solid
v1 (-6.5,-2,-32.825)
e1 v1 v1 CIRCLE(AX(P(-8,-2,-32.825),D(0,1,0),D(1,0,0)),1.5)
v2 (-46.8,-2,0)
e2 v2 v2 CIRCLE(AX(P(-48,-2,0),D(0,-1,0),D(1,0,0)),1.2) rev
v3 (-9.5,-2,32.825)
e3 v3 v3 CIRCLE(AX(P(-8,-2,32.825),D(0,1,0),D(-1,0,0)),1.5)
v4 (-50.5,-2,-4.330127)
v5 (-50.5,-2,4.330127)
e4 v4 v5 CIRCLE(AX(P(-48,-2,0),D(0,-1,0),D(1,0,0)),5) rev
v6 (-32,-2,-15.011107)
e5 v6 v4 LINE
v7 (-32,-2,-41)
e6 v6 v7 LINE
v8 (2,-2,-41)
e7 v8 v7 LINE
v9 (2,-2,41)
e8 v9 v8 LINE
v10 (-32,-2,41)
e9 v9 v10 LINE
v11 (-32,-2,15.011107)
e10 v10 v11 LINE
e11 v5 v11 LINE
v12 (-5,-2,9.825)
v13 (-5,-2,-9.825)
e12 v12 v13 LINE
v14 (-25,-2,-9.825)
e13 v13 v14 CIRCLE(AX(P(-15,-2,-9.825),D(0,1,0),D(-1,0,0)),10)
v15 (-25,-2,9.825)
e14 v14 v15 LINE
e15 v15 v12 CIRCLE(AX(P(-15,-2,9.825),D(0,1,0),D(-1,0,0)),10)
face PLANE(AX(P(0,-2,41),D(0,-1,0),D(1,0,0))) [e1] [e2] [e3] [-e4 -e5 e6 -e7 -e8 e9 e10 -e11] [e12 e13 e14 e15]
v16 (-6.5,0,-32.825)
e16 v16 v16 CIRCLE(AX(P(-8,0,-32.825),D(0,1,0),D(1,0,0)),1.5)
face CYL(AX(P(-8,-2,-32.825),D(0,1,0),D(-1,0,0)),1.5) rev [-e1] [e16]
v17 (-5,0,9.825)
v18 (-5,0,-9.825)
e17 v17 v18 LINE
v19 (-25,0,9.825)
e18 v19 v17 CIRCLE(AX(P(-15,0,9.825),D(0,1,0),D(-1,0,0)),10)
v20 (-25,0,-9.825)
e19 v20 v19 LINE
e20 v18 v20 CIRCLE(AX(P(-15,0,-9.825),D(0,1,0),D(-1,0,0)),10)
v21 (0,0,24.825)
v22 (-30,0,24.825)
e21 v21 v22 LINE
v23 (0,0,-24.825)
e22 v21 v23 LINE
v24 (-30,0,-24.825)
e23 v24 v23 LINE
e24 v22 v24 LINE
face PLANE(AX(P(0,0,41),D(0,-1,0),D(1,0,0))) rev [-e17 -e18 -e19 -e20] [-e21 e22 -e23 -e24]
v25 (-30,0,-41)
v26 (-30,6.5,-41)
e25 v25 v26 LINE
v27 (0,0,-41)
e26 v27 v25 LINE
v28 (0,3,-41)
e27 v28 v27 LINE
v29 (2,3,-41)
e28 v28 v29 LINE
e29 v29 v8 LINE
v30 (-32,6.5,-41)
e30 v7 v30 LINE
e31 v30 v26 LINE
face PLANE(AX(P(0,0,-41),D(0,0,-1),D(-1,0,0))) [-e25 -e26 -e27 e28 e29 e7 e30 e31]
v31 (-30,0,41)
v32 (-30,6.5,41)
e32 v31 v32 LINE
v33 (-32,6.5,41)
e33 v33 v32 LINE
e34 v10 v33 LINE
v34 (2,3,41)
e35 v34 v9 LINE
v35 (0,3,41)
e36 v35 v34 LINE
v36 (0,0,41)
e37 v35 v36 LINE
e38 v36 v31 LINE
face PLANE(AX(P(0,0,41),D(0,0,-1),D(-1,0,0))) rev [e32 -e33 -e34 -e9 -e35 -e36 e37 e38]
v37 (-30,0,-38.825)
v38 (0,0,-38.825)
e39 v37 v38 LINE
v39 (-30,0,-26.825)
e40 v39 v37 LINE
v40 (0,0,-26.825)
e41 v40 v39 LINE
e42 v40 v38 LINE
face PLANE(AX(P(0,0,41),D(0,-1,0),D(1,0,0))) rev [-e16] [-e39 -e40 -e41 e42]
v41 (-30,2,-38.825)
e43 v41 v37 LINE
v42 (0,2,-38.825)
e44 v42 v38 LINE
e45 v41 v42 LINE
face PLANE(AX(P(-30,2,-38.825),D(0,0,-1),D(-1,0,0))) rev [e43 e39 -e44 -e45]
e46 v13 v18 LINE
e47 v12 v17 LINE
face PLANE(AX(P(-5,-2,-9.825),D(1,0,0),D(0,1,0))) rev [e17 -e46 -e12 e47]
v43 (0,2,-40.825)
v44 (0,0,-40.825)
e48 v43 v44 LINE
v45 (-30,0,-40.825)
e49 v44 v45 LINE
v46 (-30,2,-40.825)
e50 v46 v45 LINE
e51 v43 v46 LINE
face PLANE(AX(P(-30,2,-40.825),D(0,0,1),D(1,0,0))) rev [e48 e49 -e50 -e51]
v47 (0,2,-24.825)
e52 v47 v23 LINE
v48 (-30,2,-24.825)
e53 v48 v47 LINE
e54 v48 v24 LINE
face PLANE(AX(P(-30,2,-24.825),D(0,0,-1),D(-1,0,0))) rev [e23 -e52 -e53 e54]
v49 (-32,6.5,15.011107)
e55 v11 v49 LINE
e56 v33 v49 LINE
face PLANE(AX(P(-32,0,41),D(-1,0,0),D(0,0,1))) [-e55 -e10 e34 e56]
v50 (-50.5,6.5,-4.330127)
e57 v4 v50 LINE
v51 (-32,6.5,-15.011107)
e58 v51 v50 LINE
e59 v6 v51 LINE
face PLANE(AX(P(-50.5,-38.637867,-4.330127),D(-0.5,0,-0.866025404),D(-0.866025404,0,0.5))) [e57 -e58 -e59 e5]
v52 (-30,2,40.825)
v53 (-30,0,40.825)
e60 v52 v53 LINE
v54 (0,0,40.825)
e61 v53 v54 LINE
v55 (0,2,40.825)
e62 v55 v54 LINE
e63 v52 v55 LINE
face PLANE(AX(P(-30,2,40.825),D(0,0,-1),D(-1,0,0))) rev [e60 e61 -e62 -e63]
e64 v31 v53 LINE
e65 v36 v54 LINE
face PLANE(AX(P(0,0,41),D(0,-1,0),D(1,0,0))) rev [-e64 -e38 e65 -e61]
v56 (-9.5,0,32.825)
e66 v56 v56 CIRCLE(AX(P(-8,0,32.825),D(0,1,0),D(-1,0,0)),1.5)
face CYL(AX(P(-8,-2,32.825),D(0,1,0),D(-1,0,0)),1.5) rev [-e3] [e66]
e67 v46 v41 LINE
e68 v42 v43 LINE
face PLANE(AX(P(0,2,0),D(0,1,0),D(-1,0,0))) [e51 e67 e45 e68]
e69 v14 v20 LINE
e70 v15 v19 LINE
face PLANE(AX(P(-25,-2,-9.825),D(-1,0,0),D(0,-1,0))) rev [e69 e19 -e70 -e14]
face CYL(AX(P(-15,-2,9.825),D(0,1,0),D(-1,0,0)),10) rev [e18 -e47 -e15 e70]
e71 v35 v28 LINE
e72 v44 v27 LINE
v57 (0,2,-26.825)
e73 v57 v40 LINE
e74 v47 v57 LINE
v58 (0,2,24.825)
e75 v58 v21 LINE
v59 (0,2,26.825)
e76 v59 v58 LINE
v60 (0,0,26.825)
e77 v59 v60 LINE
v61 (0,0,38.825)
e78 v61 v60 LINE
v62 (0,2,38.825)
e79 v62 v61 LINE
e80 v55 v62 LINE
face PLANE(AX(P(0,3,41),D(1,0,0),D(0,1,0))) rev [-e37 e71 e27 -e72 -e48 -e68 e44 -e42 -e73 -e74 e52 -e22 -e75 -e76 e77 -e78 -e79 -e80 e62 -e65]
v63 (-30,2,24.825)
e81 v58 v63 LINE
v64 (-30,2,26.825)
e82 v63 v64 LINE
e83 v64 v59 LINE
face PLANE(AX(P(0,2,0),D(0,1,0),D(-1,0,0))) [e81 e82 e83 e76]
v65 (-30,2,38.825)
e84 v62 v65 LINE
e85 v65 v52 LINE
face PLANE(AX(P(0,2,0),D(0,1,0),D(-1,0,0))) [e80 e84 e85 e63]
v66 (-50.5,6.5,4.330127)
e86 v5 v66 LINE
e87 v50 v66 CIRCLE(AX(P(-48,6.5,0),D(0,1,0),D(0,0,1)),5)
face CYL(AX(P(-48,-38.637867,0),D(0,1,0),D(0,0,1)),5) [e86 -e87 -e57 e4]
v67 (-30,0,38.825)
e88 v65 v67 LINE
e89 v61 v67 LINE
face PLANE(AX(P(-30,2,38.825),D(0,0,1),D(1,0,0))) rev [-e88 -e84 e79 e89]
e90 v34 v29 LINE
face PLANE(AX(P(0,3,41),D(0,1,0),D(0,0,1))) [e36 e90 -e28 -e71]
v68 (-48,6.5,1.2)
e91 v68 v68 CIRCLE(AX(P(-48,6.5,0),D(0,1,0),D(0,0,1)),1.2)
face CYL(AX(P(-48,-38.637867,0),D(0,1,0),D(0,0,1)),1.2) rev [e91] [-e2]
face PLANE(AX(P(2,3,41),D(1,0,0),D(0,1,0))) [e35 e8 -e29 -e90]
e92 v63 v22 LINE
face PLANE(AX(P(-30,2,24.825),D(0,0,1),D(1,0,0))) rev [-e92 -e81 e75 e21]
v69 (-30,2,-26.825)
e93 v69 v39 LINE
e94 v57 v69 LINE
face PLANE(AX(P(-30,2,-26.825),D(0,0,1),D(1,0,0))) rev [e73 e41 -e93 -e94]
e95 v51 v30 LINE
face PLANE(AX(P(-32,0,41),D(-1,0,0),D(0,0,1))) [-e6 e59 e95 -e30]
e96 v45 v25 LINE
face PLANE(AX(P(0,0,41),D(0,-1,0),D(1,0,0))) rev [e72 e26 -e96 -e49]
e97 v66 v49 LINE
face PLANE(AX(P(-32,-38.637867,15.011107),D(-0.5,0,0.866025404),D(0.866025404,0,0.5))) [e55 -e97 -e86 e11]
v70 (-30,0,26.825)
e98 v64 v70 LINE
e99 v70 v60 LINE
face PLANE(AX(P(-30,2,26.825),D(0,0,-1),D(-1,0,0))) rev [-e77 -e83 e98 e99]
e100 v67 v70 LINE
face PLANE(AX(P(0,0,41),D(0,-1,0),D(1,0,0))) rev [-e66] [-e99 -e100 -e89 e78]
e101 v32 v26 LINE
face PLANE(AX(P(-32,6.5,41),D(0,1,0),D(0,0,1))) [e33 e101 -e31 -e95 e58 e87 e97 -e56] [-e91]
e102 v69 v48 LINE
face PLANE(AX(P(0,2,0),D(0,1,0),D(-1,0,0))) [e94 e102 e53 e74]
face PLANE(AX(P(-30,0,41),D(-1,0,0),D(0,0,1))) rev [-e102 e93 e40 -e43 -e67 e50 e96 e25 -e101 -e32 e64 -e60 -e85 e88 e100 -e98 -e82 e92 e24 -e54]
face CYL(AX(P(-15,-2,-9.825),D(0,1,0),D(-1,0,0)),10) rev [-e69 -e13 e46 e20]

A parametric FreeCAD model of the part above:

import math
import FreeCAD as App
import Part
import Sketcher

V = App.Vector
Q = App.Units.Quantity

doc = App.newDocument("Part")
body = doc.addObject("PartDesign::Body", "Body")

# Sketch on XY plane
sketch1 = body.newObject("Sketcher::SketchObject", "Sketch")
sketch1.AttachmentSupport = (doc.getObject("XY_Plane"), [""])
sketch1.MapMode = "FlatFace"
sketch1.addGeometry(Part.LineSegment(V(0, 3, 0), V(0, 0, 0)), False)
sketch1.addGeometry(Part.LineSegment(V(0, 0, 0), V(-30, 0, 0)), False)
sketch1.addGeometry(Part.LineSegment(V(-30, 0, 0), V(-30, 6.5, 0)), False)
sketch1.addGeometry(Part.LineSegment(V(-30, 6.5, 0), V(-32, 6.5, 0)), False)
sketch1.addGeometry(Part.LineSegment(V(-32, 6.5, 0), V(-32, -2, 0)), False)
sketch1.addGeometry(Part.LineSegment(V(-32, -2, 0), V(2, -2, 0)), False)
sketch1.addGeometry(Part.LineSegment(V(2, -2, 0), V(2, 3, 0)), False)
sketch1.addGeometry(Part.LineSegment(V(2, 3, 0), V(0, 3, 0)), False)
sketch1.addConstraint(Sketcher.Constraint("Coincident", 0, 2, 1, 1))
sketch1.addConstraint(Sketcher.Constraint("Coincident", 1, 2, 2, 1))
sketch1.addConstraint(Sketcher.Constraint("Coincident", 2, 2, 3, 1))
sketch1.addConstraint(Sketcher.Constraint("Coincident", 3, 2, 4, 1))
sketch1.addConstraint(Sketcher.Constraint("Coincident", 4, 2, 5, 1))
sketch1.addConstraint(Sketcher.Constraint("Coincident", 5, 2, 6, 1))
sketch1.addConstraint(Sketcher.Constraint("Coincident", 6, 2, 7, 1))
sketch1.addConstraint(Sketcher.Constraint("Coincident", 7, 2, 0, 1))
sketch1.addConstraint(Sketcher.Constraint("Vertical", 0))
sketch1.addConstraint(Sketcher.Constraint("Horizontal", 1))
sketch1.addConstraint(Sketcher.Constraint("Vertical", 2))
sketch1.addConstraint(Sketcher.Constraint("Horizontal", 3))
sketch1.addConstraint(Sketcher.Constraint("Vertical", 4))
sketch1.addConstraint(Sketcher.Constraint("Horizontal", 5))
sketch1.addConstraint(Sketcher.Constraint("Vertical", 6))
sketch1.addConstraint(Sketcher.Constraint("Horizontal", 7))
sketch1.addConstraint(Sketcher.Constraint("Coincident", 0, 2, -1, 1))
sketch1.addConstraint(Sketcher.Constraint("Equal", 3, 7))
sketch1.addConstraint(Sketcher.Constraint("DistanceX", 1, 2, 1, 1, Q("30 mm")))
sketch1.addConstraint(Sketcher.Constraint("DistanceX", 3, 2, 3, 1, Q("2 mm")))
sketch1.addConstraint(Sketcher.Constraint("DistanceY", 0, 2, 0, 1, Q("3 mm")))
sketch1.addConstraint(Sketcher.Constraint("DistanceY", 6, 1, 6, 2, Q("5 mm")))
sketch1.addConstraint(Sketcher.Constraint("DistanceY", 2, 1, 2, 2, Q("6.5 mm")))
pad1 = body.newObject("PartDesign::Pad", "Pad")
pad1.Profile = sketch1
pad1.Length = 82
pad1.Midplane = True

# Sketch on XZ plane
sketch2 = body.newObject("Sketcher::SketchObject", "Sketch001")
sketch2.AttachmentSupport = (doc.getObject("XZ_Plane"), [""])
sketch2.MapMode = "FlatFace"
sketch2.addGeometry(Part.Circle(V(-8, 32.8, 0), V(0, 0, 1), 1.5), False)
sketch2.addGeometry(Part.Circle(V(-8, -32.8, 0), V(0, 0, 1), 1.5), False)
sketch2.addConstraint(Sketcher.Constraint("Equal", 0, 1))
sketch2.addConstraint(Sketcher.Constraint("Symmetric", 0, 3, 1, 3, -1))
sketch2.addConstraint(Sketcher.Constraint("Diameter", 0, Q("3 mm")))
sketch2.addConstraint(Sketcher.Constraint("DistanceX", 0, 3, -1, 1, Q("8 mm")))
sketch2.addConstraint(Sketcher.Constraint("DistanceY", 1, 3, 0, 3, Q("65.65 mm")))
pocket1 = body.newObject("PartDesign::Pocket", "Pocket")
pocket1.Profile = sketch2
pocket1.Type = "ThroughAll"
pocket1.Reversed = True

# Sketch on XZ plane
sketch3 = body.newObject("Sketcher::SketchObject", "Sketch002")
sketch3.AttachmentSupport = (doc.getObject("XZ_Plane"), [""])
sketch3.MapMode = "FlatFace"
sketch3.addGeometry(Part.LineSegment(V(-30, -26.8, 0), V(-30, -24.8, 0)), False)
sketch3.addGeometry(Part.LineSegment(V(-30, -24.8, 0), V(0, -24.8, 0)), False)
sketch3.addGeometry(Part.LineSegment(V(0, -24.8, 0), V(0, -26.8, 0)), False)
sketch3.addGeometry(Part.LineSegment(V(0, -26.8, 0), V(-30, -26.8, 0)), False)
sketch3.addGeometry(Part.LineSegment(V(-30, 24.8, 0), V(-30, 26.8, 0)), False)
sketch3.addGeometry(Part.LineSegment(V(-30, 26.8, 0), V(0, 26.8, 0)), False)
sketch3.addGeometry(Part.LineSegment(V(0, 26.8, 0), V(0, 24.8, 0)), False)
sketch3.addGeometry(Part.LineSegment(V(0, 24.8, 0), V(-30, 24.8, 0)), False)
sketch3.addGeometry(Part.LineSegment(V(-30, 38.8, 0), V(-30, 40.8, 0)), False)
sketch3.addGeometry(Part.LineSegment(V(-30, 40.8, 0), V(0, 40.8, 0)), False)
sketch3.addGeometry(Part.LineSegment(V(0, 40.8, 0), V(0, 38.8, 0)), False)
sketch3.addGeometry(Part.LineSegment(V(0, 38.8, 0), V(-30, 38.8, 0)), False)
sketch3.addGeometry(Part.LineSegment(V(-30, -40.8, 0), V(-30, -38.8, 0)), False)
sketch3.addGeometry(Part.LineSegment(V(-30, -38.8, 0), V(0, -38.8, 0)), False)
sketch3.addGeometry(Part.LineSegment(V(0, -38.8, 0), V(0, -40.8, 0)), False)
sketch3.addGeometry(Part.LineSegment(V(0, -40.8, 0), V(-30, -40.8, 0)), False)
sketch3.addConstraint(Sketcher.Constraint("Coincident", 0, 2, 1, 1))
sketch3.addConstraint(Sketcher.Constraint("Coincident", 1, 2, 2, 1))
sketch3.addConstraint(Sketcher.Constraint("Coincident", 2, 2, 3, 1))
sketch3.addConstraint(Sketcher.Constraint("Coincident", 3, 2, 0, 1))
sketch3.addConstraint(Sketcher.Constraint("Coincident", 4, 2, 5, 1))
sketch3.addConstraint(Sketcher.Constraint("Coincident", 5, 2, 6, 1))
sketch3.addConstraint(Sketcher.Constraint("Coincident", 6, 2, 7, 1))
sketch3.addConstraint(Sketcher.Constraint("Coincident", 7, 2, 4, 1))
sketch3.addConstraint(Sketcher.Constraint("Coincident", 8, 2, 9, 1))
sketch3.addConstraint(Sketcher.Constraint("Coincident", 9, 2, 10, 1))
sketch3.addConstraint(Sketcher.Constraint("Coincident", 10, 2, 11, 1))
sketch3.addConstraint(Sketcher.Constraint("Coincident", 11, 2, 8, 1))
sketch3.addConstraint(Sketcher.Constraint("Coincident", 12, 2, 13, 1))
sketch3.addConstraint(Sketcher.Constraint("Coincident", 13, 2, 14, 1))
sketch3.addConstraint(Sketcher.Constraint("Coincident", 14, 2, 15, 1))
sketch3.addConstraint(Sketcher.Constraint("Coincident", 15, 2, 12, 1))
sketch3.addConstraint(Sketcher.Constraint("Vertical", 0))
sketch3.addConstraint(Sketcher.Constraint("Horizontal", 1))
sketch3.addConstraint(Sketcher.Constraint("Vertical", 2))
sketch3.addConstraint(Sketcher.Constraint("Horizontal", 3))
sketch3.addConstraint(Sketcher.Constraint("Vertical", 4))
sketch3.addConstraint(Sketcher.Constraint("Horizontal", 5))
sketch3.addConstraint(Sketcher.Constraint("Vertical", 6))
sketch3.addConstraint(Sketcher.Constraint("Horizontal", 7))
sketch3.addConstraint(Sketcher.Constraint("Vertical", 8))
sketch3.addConstraint(Sketcher.Constraint("Horizontal", 9))
sketch3.addConstraint(Sketcher.Constraint("Vertical", 10))
sketch3.addConstraint(Sketcher.Constraint("Horizontal", 11))
sketch3.addConstraint(Sketcher.Constraint("Vertical", 12))
sketch3.addConstraint(Sketcher.Constraint("Horizontal", 13))
sketch3.addConstraint(Sketcher.Constraint("Vertical", 14))
sketch3.addConstraint(Sketcher.Constraint("Horizontal", 15))
sketch3.addConstraint(Sketcher.Constraint("Symmetric", 2, 2, 5, 2, -1, 1))
sketch3.addConstraint(Sketcher.Constraint("Symmetric", 10, 2, 13, 2, -1, 1))
sketch3.addConstraint(Sketcher.Constraint("Symmetric", 1, 2, 6, 2, -1))
sketch3.addConstraint(Sketcher.Constraint("Symmetric", 9, 2, 14, 2, -1))
sketch3.addConstraint(Sketcher.Constraint("Vertical", 3, 2, 4, 2))
sketch3.addConstraint(Sketcher.Constraint("Vertical", 7, 2, 8, 2))
sketch3.addConstraint(Sketcher.Constraint("Vertical", 11, 2, 12, 2))
sketch3.addConstraint(Sketcher.Constraint("Equal", 6, 8))
sketch3.addConstraint(Sketcher.Constraint("DistanceX", 1, 1, 1, 2, Q("30 mm")))
sketch3.addConstraint(Sketcher.Constraint("DistanceY", 0, 1, 0, 2, Q("2 mm")))
sketch3.addConstraint(Sketcher.Constraint("DistanceY", 4, 2, 8, 2, Q("14 mm")))
sketch3.addConstraint(Sketcher.Constraint("DistanceY", 0, 2, 4, 2, Q("51.65 mm")))
pad2 = body.newObject("PartDesign::Pad", "Pad001")
pad2.Profile = sketch3
pad2.Length = 2
pad2.Reversed = True

# Sketch on XZ plane
sketch4 = body.newObject("Sketcher::SketchObject", "Sketch003")
sketch4.AttachmentSupport = (doc.getObject("XZ_Plane"), [""])
sketch4.MapMode = "FlatFace"
sketch4.addGeometry(Part.LineSegment(V(-5, 10, 0), V(-5, -10, 0)), False)
sketch4.addGeometry(Part.ArcOfCircle(Part.Circle(V(-15, -10, 0), V(0, 0, 1), 10), math.radians(180), math.radians(360)), False)
sketch4.addGeometry(Part.LineSegment(V(-25, -10, 0), V(-25, 10, 0)), False)
sketch4.addGeometry(Part.ArcOfCircle(Part.Circle(V(-15, 10, 0), V(0, 0, 1), 10), math.radians(0), math.radians(180)), False)
sketch4.addConstraint(Sketcher.Constraint("Tangent", 0, 2, 1, 2))
sketch4.addConstraint(Sketcher.Constraint("Tangent", 1, 1, 2, 1))
sketch4.addConstraint(Sketcher.Constraint("Tangent", 2, 2, 3, 2))
sketch4.addConstraint(Sketcher.Constraint("Tangent", 3, 1, 0, 1))
sketch4.addConstraint(Sketcher.Constraint("Vertical", 0))
sketch4.addConstraint(Sketcher.Constraint("Vertical", 2))
sketch4.addConstraint(Sketcher.Constraint("Radius", 1, Q("10 mm")))
sketch4.addConstraint(Sketcher.Constraint("DistanceX", 1, 3, -1, 1, Q("15 mm")))
sketch4.addConstraint(Sketcher.Constraint("DistanceY", 0, 2, 0, 1, Q("19.65 mm")))
sketch4.addConstraint(Sketcher.Constraint("DistanceY", 1, 3, -1, 1, Q("9.825 mm")))
pocket2 = body.newObject("PartDesign::Pocket", "Pocket001")
pocket2.Profile = sketch4
pocket2.Type = "ThroughAll"
pocket2.Reversed = True

# Sketch on XZ plane
sketch5 = body.newObject("Sketcher::SketchObject", "Sketch004")
sketch5.AttachmentSupport = (doc.getObject("XZ_Plane"), [""])
sketch5.MapMode = "FlatFace"
sketch5.AttachmentOffset = App.Placement(V(0, 0, -6.5), App.Rotation())
sketch5.addGeometry(Part.LineSegment(V(-32, -15, 0), V(-50.5, -4.3, 0)), False)
sketch5.addGeometry(Part.ArcOfCircle(Part.Circle(V(-48, 0, 0), V(0, 0, 1), 5), math.radians(120), math.radians(240)), False)
sketch5.addGeometry(Part.LineSegment(V(-50.5, 4.3, 0), V(-32, 15, 0)), False)
sketch5.addGeometry(Part.LineSegment(V(-32, 15, 0), V(-32, -15, 0)), False)
sketch5.addGeometry(Part.Circle(V(-48, 0, 0), V(0, 0, 1), 1.2), False)
sketch5.addConstraint(Sketcher.Constraint("Tangent", 0, 2, 1, 2))
sketch5.addConstraint(Sketcher.Constraint("Tangent", 1, 1, 2, 1))
sketch5.addConstraint(Sketcher.Constraint("Coincident", 2, 2, 3, 1))
sketch5.addConstraint(Sketcher.Constraint("Coincident", 3, 2, 0, 1))
sketch5.addConstraint(Sketcher.Constraint("Vertical", 3))
sketch5.addConstraint(Sketcher.Constraint("Coincident", 4, 3, 1, 3))
sketch5.addConstraint(Sketcher.Constraint("Symmetric", 0, 2, 1, 1, -1))
sketch5.addConstraint(Sketcher.Constraint("Radius", 1, Q("5 mm")))
sketch5.addConstraint(Sketcher.Constraint("Diameter", 4, Q("2.4 mm")))
sketch5.addConstraint(Sketcher.Constraint("Angle", 0, Q("150 deg")))
sketch5.addConstraint(Sketcher.Constraint("DistanceX", 1, 3, -1, 1, Q("48 mm")))
sketch5.addConstraint(Sketcher.Constraint("DistanceX", 2, 2, -1, 1, Q("32 mm")))
pad3 = body.newObject("PartDesign::Pad", "Pad002")
pad3.Profile = sketch5
pad3.Length = 8.5

doc.recompute()
